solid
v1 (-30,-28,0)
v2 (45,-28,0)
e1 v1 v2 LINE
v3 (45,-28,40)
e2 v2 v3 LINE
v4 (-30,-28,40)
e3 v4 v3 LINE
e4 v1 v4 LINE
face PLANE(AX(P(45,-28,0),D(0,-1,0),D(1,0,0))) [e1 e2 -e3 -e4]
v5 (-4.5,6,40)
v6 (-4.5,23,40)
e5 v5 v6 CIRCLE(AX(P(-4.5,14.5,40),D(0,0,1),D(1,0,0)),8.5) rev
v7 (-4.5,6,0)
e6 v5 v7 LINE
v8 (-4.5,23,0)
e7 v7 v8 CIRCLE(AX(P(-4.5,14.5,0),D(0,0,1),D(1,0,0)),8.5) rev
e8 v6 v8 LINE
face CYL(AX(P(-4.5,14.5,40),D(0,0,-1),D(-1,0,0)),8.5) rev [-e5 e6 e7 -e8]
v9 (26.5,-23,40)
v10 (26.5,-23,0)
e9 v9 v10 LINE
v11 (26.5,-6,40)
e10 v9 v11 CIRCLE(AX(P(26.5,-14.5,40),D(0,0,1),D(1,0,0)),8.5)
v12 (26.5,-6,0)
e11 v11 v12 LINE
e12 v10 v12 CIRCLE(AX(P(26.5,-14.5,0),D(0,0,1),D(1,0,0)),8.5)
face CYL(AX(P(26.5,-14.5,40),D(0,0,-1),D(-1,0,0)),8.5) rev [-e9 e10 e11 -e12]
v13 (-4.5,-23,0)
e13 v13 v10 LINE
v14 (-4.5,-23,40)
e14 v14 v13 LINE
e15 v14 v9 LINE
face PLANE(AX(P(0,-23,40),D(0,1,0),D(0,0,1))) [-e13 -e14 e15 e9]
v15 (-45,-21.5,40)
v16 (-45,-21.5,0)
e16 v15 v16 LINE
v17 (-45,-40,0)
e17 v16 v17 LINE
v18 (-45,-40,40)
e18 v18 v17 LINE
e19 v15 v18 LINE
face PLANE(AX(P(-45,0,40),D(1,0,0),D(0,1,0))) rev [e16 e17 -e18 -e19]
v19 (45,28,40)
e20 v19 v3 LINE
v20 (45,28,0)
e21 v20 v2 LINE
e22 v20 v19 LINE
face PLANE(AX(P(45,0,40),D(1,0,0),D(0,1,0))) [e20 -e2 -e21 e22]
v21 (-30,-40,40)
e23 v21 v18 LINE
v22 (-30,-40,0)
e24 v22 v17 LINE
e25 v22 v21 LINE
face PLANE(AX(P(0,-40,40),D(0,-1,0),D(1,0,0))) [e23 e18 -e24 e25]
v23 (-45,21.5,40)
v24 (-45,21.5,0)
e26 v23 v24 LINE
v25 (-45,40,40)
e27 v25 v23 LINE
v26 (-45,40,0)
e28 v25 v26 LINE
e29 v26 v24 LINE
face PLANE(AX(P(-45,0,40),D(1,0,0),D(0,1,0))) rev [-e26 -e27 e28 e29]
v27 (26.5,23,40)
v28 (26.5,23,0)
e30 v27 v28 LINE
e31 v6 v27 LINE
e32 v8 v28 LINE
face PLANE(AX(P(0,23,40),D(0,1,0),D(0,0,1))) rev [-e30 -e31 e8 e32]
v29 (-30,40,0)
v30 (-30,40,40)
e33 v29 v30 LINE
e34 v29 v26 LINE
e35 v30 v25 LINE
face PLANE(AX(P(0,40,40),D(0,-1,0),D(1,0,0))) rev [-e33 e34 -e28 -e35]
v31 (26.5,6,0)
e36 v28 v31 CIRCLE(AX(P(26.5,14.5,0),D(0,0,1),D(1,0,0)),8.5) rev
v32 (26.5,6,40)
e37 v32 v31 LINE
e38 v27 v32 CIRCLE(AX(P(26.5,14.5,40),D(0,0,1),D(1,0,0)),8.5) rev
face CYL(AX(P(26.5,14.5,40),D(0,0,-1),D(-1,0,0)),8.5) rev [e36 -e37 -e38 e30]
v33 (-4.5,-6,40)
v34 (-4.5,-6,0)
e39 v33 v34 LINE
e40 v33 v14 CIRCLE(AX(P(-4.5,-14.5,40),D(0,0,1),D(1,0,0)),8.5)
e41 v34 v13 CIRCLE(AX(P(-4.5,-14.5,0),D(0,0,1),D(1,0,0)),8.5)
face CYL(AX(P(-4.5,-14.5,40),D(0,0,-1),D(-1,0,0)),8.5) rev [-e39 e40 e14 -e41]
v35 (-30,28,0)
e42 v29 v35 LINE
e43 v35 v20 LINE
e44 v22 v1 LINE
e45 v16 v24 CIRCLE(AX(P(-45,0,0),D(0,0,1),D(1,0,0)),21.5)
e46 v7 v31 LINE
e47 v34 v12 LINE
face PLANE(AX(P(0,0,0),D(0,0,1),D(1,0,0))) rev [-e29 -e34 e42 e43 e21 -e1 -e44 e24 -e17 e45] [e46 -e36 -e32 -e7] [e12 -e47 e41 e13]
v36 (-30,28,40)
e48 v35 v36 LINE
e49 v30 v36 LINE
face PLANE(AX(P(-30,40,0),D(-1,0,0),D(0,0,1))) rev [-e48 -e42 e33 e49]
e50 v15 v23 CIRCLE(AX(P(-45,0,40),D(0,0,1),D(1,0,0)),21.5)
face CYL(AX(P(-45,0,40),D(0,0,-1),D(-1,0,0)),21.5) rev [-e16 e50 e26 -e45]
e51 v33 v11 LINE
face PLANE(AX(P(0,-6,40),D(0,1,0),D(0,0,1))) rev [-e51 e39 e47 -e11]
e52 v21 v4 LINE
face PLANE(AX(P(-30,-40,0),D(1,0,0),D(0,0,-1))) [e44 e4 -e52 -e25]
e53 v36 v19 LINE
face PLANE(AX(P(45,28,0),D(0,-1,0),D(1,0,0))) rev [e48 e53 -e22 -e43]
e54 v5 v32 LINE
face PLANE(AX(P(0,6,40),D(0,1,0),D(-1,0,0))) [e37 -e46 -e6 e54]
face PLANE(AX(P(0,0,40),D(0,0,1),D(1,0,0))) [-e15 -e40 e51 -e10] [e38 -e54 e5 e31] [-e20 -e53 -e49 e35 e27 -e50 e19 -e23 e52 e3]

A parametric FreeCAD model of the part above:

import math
import FreeCAD as App
import Part
import Sketcher
from FreeCAD import Vector
Q = App.Units.Quantity

doc = App.newDocument("Part")
body = doc.addObject("PartDesign::Body", "Body")

sketch1 = body.newObject("Sketcher::SketchObject", "Sketch")
sketch1.AttachmentSupport = (doc.getObject("XY_Plane"), [""])
sketch1.MapMode = "FlatFace"
sketch1.addGeometry([
    Part.LineSegment(Vector(45, -40, 0), Vector(45, 40, 0)),
    Part.LineSegment(Vector(45, 40, 0), Vector(-45, 40, 0)),
    Part.LineSegment(Vector(-45, 40, 0), Vector(-45, 21.5, 0)),
    Part.ArcOfCircle(Part.Circle(Vector(-45, 0, 0), Vector(0, 0, 1), 21.5), math.radians(-90), math.radians(90)),
    Part.LineSegment(Vector(-45, -21.5, 0), Vector(-45, -40, 0)),
    Part.LineSegment(Vector(-45, -40, 0), Vector(45, -40, 0)),
    Part.LineSegment(Vector(26.5, -23, 0), Vector(-4.5, -23, 0)),
    Part.ArcOfCircle(Part.Circle(Vector(-4.5, -14.5, 0), Vector(0, 0, 1), 8.5), math.radians(90), math.radians(270)),
    Part.LineSegment(Vector(-4.5, -6, 0), Vector(26.5, -6, 0)),
    Part.ArcOfCircle(Part.Circle(Vector(26.5, -14.5, 0), Vector(0, 0, 1), 8.5), math.radians(-90), math.radians(90)),
    Part.ArcOfCircle(Part.Circle(Vector(26.5, 14.5, 0), Vector(0, 0, 1), 8.5), math.radians(-90), math.radians(90)),
    Part.LineSegment(Vector(26.5, 6, 0), Vector(-4.5, 6, 0)),
    Part.ArcOfCircle(Part.Circle(Vector(-4.5, 14.5, 0), Vector(0, 0, 1), 8.5), math.radians(90), math.radians(270)),
    Part.LineSegment(Vector(-4.5, 23, 0), Vector(26.5, 23, 0)),
], False)
sketch1.addConstraint([
    Sketcher.Constraint("Coincident", 0, 2, 1, 1),
    Sketcher.Constraint("Coincident", 1, 2, 2, 1),
    Sketcher.Constraint("Coincident", 2, 2, 3, 2),
    Sketcher.Constraint("Coincident", 3, 1, 4, 1),
    Sketcher.Constraint("Coincident", 4, 2, 5, 1),
    Sketcher.Constraint("Coincident", 5, 2, 0, 1),
    Sketcher.Constraint("Tangent", 6, 2, 7, 2),
    Sketcher.Constraint("Tangent", 7, 1, 8, 1),
    Sketcher.Constraint("Tangent", 8, 2, 9, 2),
    Sketcher.Constraint("Tangent", 9, 1, 6, 1),
    Sketcher.Constraint("Tangent", 10, 1, 11, 1),
    Sketcher.Constraint("Tangent", 11, 2, 12, 2),
    Sketcher.Constraint("Tangent", 12, 1, 13, 1),
    Sketcher.Constraint("Tangent", 13, 2, 10, 2),
    Sketcher.Constraint("Vertical", 0),
    Sketcher.Constraint("Horizontal", 1),
    Sketcher.Constraint("Vertical", 2),
    Sketcher.Constraint("Vertical", 4),
    Sketcher.Constraint("Horizontal", 5),
    Sketcher.Constraint("Horizontal", 6),
    Sketcher.Constraint("Horizontal", 8),
    Sketcher.Constraint("Horizontal", 11),
    Sketcher.Constraint("Horizontal", 13),
    Sketcher.Constraint("Equal", 9, 10),
    Sketcher.Constraint("Symmetric", 0, 2, 4, 2, -1, 1),
    Sketcher.Constraint("Symmetric", 9, 3, 10, 3, -1),
    Sketcher.Constraint("Symmetric", 2, 2, 3, 1, -1),
    Sketcher.Constraint("Vertical", 7, 3, 12, 3),
    Sketcher.Constraint("Vertical", 3, 3, 1, 2),
    Sketcher.Constraint("Radius", 3, Q("21.5 mm")),
    Sketcher.Constraint("Radius", 7, Q("8.5 mm")),
    Sketcher.Constraint("DistanceX", 1, 2, 1, 1, Q("90 mm")),
    Sketcher.Constraint("DistanceX", 6, 2, 6, 1, Q("31 mm")),
    Sketcher.Constraint("DistanceY", 0, 1, 0, 2, Q("80 mm")),
    Sketcher.Constraint("DistanceY", 6, 2, -1, 1, Q("23 mm")),
    Sketcher.Constraint("DistanceX", 7, 3, -1, 1, Q("4.5 mm")),
])
pad1 = body.newObject("PartDesign::Pad", "Pad")
pad1.Profile = sketch1
pad1.Length = 40

sketch2 = body.newObject("Sketcher::SketchObject", "Sketch001")
sketch2.AttachmentSupport = (doc.getObject("XY_Plane"), [""])
sketch2.MapMode = "FlatFace"
sketch2.AttachmentOffset = App.Placement(Vector(0, 0, 40), App.Rotation())
sketch2.addGeometry([
    Part.LineSegment(Vector(-30, 40, 0), Vector(-30, 28, 0)),
    Part.LineSegment(Vector(-30, 28, 0), Vector(45, 28, 0)),
    Part.LineSegment(Vector(45, 28, 0), Vector(45, 40, 0)),
    Part.LineSegment(Vector(45, 40, 0), Vector(-30, 40, 0)),
], False)
sketch2.addConstraint([
    Sketcher.Constraint("Coincident", 0, 2, 1, 1),
    Sketcher.Constraint("Coincident", 1, 2, 2, 1),
    Sketcher.Constraint("Coincident", 2, 2, 3, 1),
    Sketcher.Constraint("Coincident", 3, 2, 0, 1),
    Sketcher.Constraint("Vertical", 0),
    Sketcher.Constraint("Horizontal", 1),
    Sketcher.Constraint("Vertical", 2),
    Sketcher.Constraint("Horizontal", 3),
    Sketcher.Constraint("DistanceX", 1, 1, 1, 2, Q("75 mm")),
    Sketcher.Constraint("DistanceY", 0, 2, 0, 1, Q("12 mm")),
    Sketcher.Constraint("DistanceX", 0, 2, -1, 1, Q("30 mm")),
    Sketcher.Constraint("DistanceY", -1, 1, 0, 2, Q("28 mm")),
])
pocket1 = body.newObject("PartDesign::Pocket", "Pocket")
pocket1.Profile = sketch2
pocket1.Type = "ThroughAll"
doc.recompute()

mirrored = body.newObject("PartDesign::Mirrored", "Mirrored")
mirrored.Originals = [pocket1]
mirrored.MirrorPlane = (doc.getObject("XZ_Plane"), [""])
body.Tip = mirrored

doc.recompute()
